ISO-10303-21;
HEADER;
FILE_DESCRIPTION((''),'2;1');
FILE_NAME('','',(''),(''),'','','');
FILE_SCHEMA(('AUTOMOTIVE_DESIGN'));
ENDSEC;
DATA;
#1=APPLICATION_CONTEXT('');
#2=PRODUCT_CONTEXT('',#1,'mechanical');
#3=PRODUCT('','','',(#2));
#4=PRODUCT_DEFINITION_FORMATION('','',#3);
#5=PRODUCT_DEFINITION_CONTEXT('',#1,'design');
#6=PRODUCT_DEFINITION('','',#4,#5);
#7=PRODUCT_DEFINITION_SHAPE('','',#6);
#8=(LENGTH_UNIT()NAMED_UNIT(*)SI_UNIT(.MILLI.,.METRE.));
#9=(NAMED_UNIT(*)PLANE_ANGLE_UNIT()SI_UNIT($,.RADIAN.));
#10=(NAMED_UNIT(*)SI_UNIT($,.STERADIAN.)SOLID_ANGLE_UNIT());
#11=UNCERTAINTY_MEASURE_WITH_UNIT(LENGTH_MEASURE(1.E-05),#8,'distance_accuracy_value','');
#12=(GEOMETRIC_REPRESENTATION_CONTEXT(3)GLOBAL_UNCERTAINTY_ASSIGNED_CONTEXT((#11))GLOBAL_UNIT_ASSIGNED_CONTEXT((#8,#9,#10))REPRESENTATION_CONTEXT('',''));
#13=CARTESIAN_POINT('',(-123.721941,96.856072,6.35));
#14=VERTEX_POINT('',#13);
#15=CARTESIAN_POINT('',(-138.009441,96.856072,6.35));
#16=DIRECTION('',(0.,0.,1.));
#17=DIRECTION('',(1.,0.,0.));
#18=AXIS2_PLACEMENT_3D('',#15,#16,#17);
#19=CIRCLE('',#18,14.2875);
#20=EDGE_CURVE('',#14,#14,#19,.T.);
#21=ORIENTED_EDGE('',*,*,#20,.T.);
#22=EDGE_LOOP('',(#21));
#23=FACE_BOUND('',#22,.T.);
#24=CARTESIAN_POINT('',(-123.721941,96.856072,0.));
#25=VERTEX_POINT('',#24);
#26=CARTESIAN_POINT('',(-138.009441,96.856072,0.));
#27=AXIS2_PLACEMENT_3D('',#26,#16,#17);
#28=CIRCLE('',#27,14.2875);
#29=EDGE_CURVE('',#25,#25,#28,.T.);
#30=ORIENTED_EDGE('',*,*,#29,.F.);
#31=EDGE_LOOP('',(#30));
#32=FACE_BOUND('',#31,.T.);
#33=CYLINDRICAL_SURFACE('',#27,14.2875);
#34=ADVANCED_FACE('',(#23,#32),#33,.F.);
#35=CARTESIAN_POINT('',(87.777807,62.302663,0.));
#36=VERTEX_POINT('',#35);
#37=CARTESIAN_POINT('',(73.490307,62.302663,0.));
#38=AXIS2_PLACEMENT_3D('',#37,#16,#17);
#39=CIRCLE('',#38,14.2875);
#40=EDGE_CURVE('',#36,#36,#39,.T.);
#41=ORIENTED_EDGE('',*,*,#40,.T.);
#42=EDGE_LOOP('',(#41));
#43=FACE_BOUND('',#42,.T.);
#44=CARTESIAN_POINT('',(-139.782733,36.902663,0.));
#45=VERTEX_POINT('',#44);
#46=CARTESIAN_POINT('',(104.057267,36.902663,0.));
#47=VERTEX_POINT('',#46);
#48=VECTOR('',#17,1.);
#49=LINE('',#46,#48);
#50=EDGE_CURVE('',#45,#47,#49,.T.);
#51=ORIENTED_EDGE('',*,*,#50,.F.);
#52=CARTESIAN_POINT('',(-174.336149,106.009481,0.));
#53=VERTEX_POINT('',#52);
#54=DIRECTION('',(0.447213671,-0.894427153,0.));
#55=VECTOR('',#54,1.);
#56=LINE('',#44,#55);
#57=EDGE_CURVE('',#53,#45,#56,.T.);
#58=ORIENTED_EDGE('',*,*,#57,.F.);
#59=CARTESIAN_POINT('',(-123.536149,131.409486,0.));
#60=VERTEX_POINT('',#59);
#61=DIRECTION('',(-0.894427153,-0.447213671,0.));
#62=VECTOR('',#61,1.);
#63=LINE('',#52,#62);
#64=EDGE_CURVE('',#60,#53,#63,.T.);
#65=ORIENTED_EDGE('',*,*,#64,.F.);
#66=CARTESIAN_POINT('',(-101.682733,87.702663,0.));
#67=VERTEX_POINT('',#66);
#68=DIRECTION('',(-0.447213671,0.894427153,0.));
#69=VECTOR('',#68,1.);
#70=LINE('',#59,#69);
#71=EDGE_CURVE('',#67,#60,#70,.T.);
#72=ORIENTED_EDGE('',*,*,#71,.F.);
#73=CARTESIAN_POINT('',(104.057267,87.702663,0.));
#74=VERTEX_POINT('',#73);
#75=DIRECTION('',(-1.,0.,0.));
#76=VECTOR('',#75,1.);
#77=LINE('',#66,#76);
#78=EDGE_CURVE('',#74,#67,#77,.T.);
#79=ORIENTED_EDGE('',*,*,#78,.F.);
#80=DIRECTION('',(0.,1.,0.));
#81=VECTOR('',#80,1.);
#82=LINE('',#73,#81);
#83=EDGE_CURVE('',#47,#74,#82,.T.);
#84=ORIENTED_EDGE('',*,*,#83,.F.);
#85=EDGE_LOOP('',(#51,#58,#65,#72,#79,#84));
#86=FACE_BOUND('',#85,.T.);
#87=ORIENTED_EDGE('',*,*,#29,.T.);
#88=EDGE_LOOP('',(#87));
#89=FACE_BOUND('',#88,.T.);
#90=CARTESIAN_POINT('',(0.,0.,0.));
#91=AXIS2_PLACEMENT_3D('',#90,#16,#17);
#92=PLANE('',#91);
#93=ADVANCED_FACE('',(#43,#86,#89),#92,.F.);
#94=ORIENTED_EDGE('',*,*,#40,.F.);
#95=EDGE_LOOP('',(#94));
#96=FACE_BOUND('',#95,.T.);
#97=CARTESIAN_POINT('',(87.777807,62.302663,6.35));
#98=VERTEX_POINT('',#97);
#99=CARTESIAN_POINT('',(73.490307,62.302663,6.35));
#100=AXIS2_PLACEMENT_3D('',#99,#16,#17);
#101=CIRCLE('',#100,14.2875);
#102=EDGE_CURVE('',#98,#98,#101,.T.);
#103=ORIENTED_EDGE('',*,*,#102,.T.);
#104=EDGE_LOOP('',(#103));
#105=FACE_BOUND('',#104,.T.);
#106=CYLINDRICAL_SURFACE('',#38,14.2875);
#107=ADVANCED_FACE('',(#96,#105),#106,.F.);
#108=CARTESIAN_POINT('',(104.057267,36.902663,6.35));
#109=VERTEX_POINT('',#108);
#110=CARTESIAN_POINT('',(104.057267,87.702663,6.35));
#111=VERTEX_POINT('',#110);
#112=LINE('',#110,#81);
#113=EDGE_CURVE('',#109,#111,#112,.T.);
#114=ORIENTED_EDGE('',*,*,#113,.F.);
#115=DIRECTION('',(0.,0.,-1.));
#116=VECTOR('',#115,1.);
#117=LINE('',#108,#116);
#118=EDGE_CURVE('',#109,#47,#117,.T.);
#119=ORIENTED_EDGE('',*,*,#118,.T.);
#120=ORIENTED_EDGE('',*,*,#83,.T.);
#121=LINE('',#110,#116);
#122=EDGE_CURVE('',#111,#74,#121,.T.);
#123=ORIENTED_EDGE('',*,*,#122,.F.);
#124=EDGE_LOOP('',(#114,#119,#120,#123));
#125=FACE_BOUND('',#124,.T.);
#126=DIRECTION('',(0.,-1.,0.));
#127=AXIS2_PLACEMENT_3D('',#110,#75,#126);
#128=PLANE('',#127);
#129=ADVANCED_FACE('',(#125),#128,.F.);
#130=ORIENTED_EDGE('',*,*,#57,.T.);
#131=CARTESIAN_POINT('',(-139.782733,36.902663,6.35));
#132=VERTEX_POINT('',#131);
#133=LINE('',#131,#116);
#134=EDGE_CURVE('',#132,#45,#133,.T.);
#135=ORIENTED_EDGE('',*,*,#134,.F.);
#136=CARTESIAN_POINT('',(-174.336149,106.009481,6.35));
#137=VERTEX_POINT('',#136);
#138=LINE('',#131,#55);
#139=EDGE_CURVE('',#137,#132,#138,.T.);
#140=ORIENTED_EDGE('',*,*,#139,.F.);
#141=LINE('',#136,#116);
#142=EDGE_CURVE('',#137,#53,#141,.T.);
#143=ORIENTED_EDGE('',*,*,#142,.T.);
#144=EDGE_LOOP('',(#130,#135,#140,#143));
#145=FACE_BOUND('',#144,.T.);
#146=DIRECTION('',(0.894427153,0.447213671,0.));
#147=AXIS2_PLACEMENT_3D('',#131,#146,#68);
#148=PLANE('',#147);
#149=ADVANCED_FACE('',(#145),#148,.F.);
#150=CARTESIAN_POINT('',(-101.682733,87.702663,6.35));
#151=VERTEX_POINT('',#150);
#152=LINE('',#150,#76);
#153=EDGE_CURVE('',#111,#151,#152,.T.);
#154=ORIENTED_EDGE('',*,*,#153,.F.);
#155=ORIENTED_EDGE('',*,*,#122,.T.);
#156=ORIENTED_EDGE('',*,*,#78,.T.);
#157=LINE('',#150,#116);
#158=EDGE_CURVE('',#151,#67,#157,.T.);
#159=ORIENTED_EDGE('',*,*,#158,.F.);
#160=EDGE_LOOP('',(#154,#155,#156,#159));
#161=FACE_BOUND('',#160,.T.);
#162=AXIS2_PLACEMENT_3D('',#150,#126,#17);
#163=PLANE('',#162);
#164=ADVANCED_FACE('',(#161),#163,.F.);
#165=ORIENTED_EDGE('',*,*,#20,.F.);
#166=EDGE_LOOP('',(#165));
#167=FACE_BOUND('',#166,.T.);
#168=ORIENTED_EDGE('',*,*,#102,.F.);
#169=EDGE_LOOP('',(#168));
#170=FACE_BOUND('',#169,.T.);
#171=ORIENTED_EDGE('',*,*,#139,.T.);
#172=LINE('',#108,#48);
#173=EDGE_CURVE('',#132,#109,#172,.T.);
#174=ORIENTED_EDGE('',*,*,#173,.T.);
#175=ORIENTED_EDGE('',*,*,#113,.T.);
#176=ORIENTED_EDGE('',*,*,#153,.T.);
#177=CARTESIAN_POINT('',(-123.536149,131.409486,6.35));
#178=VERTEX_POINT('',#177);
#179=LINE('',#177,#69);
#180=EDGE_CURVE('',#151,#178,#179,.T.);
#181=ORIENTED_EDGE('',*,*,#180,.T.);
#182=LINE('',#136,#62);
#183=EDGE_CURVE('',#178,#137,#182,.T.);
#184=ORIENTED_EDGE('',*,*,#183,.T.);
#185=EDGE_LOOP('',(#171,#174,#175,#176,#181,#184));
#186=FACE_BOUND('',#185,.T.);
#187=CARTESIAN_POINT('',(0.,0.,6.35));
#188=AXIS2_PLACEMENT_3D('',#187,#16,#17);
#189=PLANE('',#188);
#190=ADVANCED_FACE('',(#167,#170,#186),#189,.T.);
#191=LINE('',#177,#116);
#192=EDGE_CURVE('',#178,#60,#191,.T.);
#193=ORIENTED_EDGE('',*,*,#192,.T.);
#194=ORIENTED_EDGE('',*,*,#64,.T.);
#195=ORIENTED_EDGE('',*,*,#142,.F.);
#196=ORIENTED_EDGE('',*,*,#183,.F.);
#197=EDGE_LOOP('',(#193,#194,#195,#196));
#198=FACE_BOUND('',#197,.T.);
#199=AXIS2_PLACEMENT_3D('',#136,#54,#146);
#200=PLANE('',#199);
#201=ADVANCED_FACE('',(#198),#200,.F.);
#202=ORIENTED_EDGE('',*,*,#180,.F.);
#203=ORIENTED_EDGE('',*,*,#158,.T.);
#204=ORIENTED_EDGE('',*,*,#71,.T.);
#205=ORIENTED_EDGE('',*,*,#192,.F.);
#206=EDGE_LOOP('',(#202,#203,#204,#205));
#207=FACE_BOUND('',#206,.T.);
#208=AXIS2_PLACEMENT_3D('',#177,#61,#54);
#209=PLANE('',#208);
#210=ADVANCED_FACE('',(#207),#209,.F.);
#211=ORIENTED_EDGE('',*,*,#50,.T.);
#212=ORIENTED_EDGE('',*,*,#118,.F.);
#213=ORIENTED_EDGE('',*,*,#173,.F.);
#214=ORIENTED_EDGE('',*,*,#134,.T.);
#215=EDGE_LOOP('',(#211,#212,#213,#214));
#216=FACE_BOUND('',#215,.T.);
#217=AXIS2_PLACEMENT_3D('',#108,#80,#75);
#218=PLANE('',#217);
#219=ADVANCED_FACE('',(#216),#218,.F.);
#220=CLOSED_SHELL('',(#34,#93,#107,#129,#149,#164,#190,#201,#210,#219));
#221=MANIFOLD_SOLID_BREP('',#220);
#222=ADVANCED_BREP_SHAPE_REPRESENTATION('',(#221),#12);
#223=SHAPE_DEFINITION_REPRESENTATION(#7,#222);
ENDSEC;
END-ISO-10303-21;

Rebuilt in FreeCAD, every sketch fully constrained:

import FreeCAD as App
import Part
import Sketcher

V = App.Vector
Q = App.Units.Quantity

doc = App.newDocument("Part")
body = doc.addObject("PartDesign::Body", "Body")

# Sketch on XY plane
sketch1 = body.newObject("Sketcher::SketchObject", "Sketch")
sketch1.AttachmentSupport = (doc.getObject("XY_Plane"), [""])
sketch1.MapMode = "FlatFace"
sketch1.addGeometry(Part.LineSegment(V(-174, 106, 0), V(-140, 37, 0)), False)
sketch1.addGeometry(Part.LineSegment(V(-140, 37, 0), V(104, 37, 0)), False)
sketch1.addGeometry(Part.LineSegment(V(104, 37, 0), V(104, 88, 0)), False)
sketch1.addGeometry(Part.LineSegment(V(104, 88, 0), V(-102, 88, 0)), False)
sketch1.addGeometry(Part.LineSegment(V(-102, 88, 0), V(-124, 131, 0)), False)
sketch1.addGeometry(Part.LineSegment(V(-124, 131, 0), V(-174, 106, 0)), False)
sketch1.addConstraint(Sketcher.Constraint("Coincident", 0, 2, 1, 1))
sketch1.addConstraint(Sketcher.Constraint("Coincident", 1, 2, 2, 1))
sketch1.addConstraint(Sketcher.Constraint("Coincident", 2, 2, 3, 1))
sketch1.addConstraint(Sketcher.Constraint("Coincident", 3, 2, 4, 1))
sketch1.addConstraint(Sketcher.Constraint("Coincident", 4, 2, 5, 1))
sketch1.addConstraint(Sketcher.Constraint("Coincident", 5, 2, 0, 1))
sketch1.addConstraint(Sketcher.Constraint("Horizontal", 1))
sketch1.addConstraint(Sketcher.Constraint("Vertical", 2))
sketch1.addConstraint(Sketcher.Constraint("Horizontal", 3))
sketch1.addConstraint(Sketcher.Constraint("Parallel", 0, 4))
sketch1.addConstraint(Sketcher.Constraint("Perpendicular", 4, 5))
sketch1.addConstraint(Sketcher.Constraint("DistanceY", 2, 1, 2, 2, Q("2 in")))
sketch1.addConstraint(Sketcher.Constraint("DistanceX", 1, 1, 1, 2, Q("9.6 in")))
sketch1.addConstraint(Sketcher.Constraint("DistanceX", 3, 2, 3, 1, Q("8.1 in")))
sketch1.addConstraint(Sketcher.Constraint("Distance", 5, Q("56.796129 mm")))
sketch1.addConstraint(Sketcher.Constraint("DistanceX", 4, 2, -1, 1, Q("123.536149 mm")))
sketch1.addConstraint(Sketcher.Constraint("DistanceY", -1, 1, 5, 2, Q("106.009481 mm")))
sketch1.addConstraint(Sketcher.Constraint("Distance", 0, Q("77.263774 mm")))
pad1 = body.newObject("PartDesign::Pad", "Pad")
pad1.Profile = sketch1
pad1.Length = Q("0.25 in")

# Sketch on XY plane
sketch2 = body.newObject("Sketcher::SketchObject", "Sketch001")
sketch2.AttachmentSupport = (doc.getObject("XY_Plane"), [""])
sketch2.MapMode = "FlatFace"
sketch2.AttachmentOffset = App.Placement(V(0, 0, 0.25 * 25.4), App.Rotation())
sketch2.addGeometry(Part.Circle(V(73, 62, 0), V(0, 0, 1), 14), False)
sketch2.addGeometry(Part.Circle(V(-138, 97, 0), V(0, 0, 1), 14), False)
sketch2.addConstraint(Sketcher.Constraint("Equal", 0, 1))
sketch2.addConstraint(Sketcher.Constraint("Diameter", 0, Q("1.125 in")))
sketch2.addConstraint(Sketcher.Constraint("DistanceX", 1, 3, -1, 1, Q("138.009441 mm")))
sketch2.addConstraint(Sketcher.Constraint("DistanceX", 1, 3, 0, 3, Q("211.499748 mm")))
sketch2.addConstraint(Sketcher.Constraint("DistanceY", 0, 3, 1, 3, Q("34.553409 mm")))
sketch2.addConstraint(Sketcher.Constraint("DistanceY", -1, 1, 0, 3, Q("62.302663 mm")))
pocket1 = body.newObject("PartDesign::Pocket", "Pocket")
pocket1.Profile = sketch2
pocket1.Length = Q("0.25 in")

doc.recompute()
